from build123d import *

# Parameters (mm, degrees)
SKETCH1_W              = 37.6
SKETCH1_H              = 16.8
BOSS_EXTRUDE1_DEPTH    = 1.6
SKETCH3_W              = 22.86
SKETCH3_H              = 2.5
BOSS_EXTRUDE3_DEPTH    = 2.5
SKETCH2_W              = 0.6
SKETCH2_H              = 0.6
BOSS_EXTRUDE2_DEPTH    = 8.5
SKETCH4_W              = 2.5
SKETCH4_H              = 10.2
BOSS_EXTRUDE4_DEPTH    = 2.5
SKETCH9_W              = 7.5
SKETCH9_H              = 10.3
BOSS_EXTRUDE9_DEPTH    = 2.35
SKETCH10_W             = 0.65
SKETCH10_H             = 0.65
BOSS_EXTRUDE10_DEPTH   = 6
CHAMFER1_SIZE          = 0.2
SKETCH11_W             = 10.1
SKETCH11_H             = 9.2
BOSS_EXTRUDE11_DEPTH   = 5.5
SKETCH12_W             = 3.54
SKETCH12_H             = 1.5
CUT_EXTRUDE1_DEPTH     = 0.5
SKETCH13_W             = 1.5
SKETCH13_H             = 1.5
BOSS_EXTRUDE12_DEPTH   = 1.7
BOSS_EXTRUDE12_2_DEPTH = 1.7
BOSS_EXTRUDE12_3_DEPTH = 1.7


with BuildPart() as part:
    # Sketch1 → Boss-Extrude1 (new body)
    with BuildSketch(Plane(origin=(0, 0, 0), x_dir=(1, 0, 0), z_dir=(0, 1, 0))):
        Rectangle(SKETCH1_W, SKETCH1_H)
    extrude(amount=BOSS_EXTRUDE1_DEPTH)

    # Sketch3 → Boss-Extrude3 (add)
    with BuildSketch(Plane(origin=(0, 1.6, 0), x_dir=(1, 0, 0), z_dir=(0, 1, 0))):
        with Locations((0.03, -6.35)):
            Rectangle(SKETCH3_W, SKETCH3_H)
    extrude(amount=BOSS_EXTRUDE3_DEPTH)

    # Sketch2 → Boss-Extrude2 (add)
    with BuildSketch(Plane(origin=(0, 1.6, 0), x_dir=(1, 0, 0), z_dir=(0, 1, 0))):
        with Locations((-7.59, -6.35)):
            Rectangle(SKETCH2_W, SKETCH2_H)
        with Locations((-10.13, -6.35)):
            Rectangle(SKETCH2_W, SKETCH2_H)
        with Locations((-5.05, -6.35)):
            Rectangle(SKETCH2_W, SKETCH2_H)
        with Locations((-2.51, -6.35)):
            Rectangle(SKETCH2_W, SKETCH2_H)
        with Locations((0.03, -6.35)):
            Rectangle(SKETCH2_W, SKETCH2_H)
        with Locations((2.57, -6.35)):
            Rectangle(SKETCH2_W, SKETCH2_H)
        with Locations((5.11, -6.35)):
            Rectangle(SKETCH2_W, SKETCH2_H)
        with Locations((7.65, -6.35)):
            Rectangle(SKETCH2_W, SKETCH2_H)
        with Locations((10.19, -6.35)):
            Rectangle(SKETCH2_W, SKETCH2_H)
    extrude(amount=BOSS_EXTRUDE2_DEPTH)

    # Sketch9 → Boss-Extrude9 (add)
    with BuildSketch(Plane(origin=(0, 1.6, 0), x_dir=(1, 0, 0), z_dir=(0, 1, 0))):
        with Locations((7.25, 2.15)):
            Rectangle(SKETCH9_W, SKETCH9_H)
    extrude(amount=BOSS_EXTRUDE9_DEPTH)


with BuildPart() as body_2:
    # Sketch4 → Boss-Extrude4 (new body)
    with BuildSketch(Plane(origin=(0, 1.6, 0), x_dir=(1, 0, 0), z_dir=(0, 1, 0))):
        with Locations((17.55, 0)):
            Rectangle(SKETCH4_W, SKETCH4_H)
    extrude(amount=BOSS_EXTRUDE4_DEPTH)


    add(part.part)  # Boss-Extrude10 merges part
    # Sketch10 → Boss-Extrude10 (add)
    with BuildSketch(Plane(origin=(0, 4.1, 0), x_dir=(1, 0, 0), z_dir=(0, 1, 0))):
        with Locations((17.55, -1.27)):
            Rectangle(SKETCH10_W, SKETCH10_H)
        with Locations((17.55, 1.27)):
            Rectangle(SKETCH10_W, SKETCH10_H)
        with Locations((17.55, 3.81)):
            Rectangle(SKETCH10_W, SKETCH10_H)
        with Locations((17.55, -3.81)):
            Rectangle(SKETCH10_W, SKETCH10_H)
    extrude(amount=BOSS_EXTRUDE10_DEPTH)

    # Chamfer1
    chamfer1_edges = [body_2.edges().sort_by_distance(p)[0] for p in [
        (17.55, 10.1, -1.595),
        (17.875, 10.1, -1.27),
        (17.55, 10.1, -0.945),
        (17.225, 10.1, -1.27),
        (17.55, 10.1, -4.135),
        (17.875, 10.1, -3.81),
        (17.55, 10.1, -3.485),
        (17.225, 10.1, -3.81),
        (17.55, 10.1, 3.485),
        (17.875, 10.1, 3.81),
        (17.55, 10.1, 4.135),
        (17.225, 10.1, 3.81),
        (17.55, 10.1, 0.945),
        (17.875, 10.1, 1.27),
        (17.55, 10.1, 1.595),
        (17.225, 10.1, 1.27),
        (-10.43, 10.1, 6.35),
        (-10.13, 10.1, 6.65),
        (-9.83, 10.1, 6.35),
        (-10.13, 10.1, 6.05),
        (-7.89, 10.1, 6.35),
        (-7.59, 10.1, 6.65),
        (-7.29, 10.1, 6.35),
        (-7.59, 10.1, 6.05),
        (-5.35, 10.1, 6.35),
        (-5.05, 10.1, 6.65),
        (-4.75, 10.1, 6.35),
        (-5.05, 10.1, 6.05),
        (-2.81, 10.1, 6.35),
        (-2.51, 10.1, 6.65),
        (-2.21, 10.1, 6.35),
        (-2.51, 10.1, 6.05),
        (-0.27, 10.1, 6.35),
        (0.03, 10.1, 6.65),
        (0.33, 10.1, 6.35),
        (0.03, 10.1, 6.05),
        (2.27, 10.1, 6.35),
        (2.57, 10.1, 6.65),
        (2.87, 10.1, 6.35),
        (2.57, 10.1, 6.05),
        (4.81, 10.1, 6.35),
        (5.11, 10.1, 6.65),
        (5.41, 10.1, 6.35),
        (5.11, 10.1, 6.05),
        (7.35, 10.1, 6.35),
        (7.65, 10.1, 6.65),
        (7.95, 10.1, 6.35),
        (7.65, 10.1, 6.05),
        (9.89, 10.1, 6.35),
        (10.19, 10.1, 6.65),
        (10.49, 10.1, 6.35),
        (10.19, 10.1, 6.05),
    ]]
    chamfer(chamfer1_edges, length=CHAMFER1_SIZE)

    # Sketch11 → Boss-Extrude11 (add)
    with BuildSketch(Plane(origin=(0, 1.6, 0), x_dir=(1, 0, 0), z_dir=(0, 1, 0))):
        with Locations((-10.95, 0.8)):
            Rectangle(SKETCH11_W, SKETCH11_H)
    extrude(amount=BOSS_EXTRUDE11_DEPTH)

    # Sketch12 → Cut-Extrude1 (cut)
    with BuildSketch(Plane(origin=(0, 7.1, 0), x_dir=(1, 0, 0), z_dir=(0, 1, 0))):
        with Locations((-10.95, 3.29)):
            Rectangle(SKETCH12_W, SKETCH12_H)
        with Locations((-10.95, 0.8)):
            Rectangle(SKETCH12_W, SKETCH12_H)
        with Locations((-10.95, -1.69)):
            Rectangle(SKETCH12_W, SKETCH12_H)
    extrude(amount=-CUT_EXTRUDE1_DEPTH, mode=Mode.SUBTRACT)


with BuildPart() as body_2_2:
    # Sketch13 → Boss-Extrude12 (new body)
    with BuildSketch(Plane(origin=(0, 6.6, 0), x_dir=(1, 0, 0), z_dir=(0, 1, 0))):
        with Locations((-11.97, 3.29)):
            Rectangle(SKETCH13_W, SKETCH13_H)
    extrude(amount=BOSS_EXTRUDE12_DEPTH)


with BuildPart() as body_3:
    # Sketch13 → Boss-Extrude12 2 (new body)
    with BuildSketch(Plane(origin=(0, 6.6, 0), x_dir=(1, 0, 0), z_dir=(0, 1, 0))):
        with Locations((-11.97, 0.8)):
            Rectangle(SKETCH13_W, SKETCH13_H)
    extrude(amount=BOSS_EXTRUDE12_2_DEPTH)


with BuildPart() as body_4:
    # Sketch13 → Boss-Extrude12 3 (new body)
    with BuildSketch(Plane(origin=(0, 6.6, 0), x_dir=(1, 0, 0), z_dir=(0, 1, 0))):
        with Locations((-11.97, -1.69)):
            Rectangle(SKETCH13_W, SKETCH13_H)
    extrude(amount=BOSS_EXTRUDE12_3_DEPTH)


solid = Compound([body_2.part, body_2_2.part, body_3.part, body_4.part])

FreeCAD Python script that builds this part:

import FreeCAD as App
import Part
import Sketcher
from FreeCAD import Vector
Q = App.Units.Quantity


def edges_at(feature, points):
    """Names of the edges that pass closest to the given points."""
    edges = feature.Shape.Edges
    near = lambda p: min(range(len(edges)), key=lambda i: edges[i].distToShape(Part.Vertex(*p))[0])
    return sorted({f"Edge{near(p) + 1}" for p in points})


def add_polygon(sketch, points):
    """Adds a closed chain of lines whose ends are joined by coincident constraints."""
    first, n = sketch.GeometryCount, len(points)
    for a, b in zip(points, points[1:] + points[:1]):
        sketch.addGeometry(Part.LineSegment(App.Vector(*a, 0), App.Vector(*b, 0)), False)
    for i in range(n):
        sketch.addConstraint(Sketcher.Constraint("Coincident", first + i, 2, first + (i + 1) % n, 1))

doc = App.newDocument("Part")
params = doc.addObject("Spreadsheet::Sheet", "Params")
for row, (alias, value) in enumerate([
    ("sketch1_width", "37.6 mm"),
    ("sketch1_height", "16.8 mm"),
    ("pad1_length", "1.6 mm"),
    ("sketch2_height", "2.5 mm"),
    ("sketch2_width", "22.86 mm"),
    ("pad2_length", "2.5 mm"),
    ("sketch3_width", "0.6 mm"),
    ("pad3_length", "8.5 mm"),
    ("sketch4_width", "7.5 mm"),
    ("sketch4_height", "10.3 mm"),
    ("pad4_length", "2.35 mm"),
    ("sketch5_width", "2.5 mm"),
    ("sketch5_height", "10.2 mm"),
    ("pad5_length", "2.5 mm"),
    ("sketch6_width", "0.65 mm"),
    ("pad6_length", "6 mm"),
    ("chamfer_size", "0.2 mm"),
    ("sketch7_width", "10.1 mm"),
    ("sketch7_height", "9.2 mm"),
    ("pad7_length", "5.5 mm"),
    ("sketch8_height", "1.5 mm"),
    ("sketch8_width", "3.54 mm"),
    ("pocket1_length", "0.5 mm"),
    ("sketch9_width", "1.5 mm"),
    ("pad8_length", "1.7 mm"),
    ("sketch10_width", "1.5 mm"),
    ("pad9_length", "1.7 mm"),
    ("sketch11_width", "1.5 mm"),
    ("pad10_length", "1.7 mm"),
], start=1):
    params.set(f"A{row}", alias)
    params.set(f"B{row}", "=" + value)
    params.setAlias(f"B{row}", alias)

body = doc.addObject("PartDesign::Body", "Body")

sketch1 = body.newObject("Sketcher::SketchObject", "Sketch")
sketch1.AttachmentSupport = (doc.getObject("XZ_Plane"), [""])
sketch1.MapMode = "FlatFace"
add_polygon(sketch1, [(-19, -8), (-19, 8), (19, 8), (19, -8)])
sketch1.addConstraint([
    Sketcher.Constraint("Vertical", 0),
    Sketcher.Constraint("Horizontal", 1),
    Sketcher.Constraint("Vertical", 2),
    Sketcher.Constraint("Horizontal", 3),
    Sketcher.Constraint("Symmetric", 0, 2, 2, 2, -1, 1),
    Sketcher.Constraint("DistanceX", 1, 1, 1, 2, Q("37.6 mm")),
    Sketcher.Constraint("DistanceY", 0, 1, 0, 2, Q("16.8 mm")),
])
sketch1.setExpression("Constraints[9]", "Params.sketch1_width")
sketch1.setExpression("Constraints[10]", "Params.sketch1_height")
pad1 = body.newObject("PartDesign::Pad", "Pad")
pad1.Profile = sketch1
pad1.setExpression("Length", "Params.pad1_length")
pad1.Reversed = True

sketch2 = body.newObject("Sketcher::SketchObject", "Sketch001")
sketch2.AttachmentSupport = (doc.getObject("XZ_Plane"), [""])
sketch2.MapMode = "FlatFace"
sketch2.AttachmentOffset = App.Placement(Vector(0, 0, -1.6), App.Rotation())
add_polygon(sketch2, [(-11.4, 5.1), (-11.4, 7.6), (11.5, 7.6), (11.5, 5.1)])
sketch2.addConstraint([
    Sketcher.Constraint("Vertical", 0),
    Sketcher.Constraint("Horizontal", 1),
    Sketcher.Constraint("Vertical", 2),
    Sketcher.Constraint("Horizontal", 3),
    Sketcher.Constraint("DistanceY", 0, 1, 0, 2, Q("2.5 mm")),
    Sketcher.Constraint("DistanceX", 1, 1, 1, 2, Q("22.86 mm")),
    Sketcher.Constraint("DistanceX", 0, 2, -1, 1, Q("11.4 mm")),
    Sketcher.Constraint("DistanceY", -1, 1, 0, 2, Q("7.6 mm")),
])
sketch2.setExpression("Constraints[8]", "Params.sketch2_height")
sketch2.setExpression("Constraints[9]", "Params.sketch2_width")
pad2 = body.newObject("PartDesign::Pad", "Pad001")
pad2.Profile = sketch2
pad2.setExpression("Length", "Params.pad2_length")
pad2.Reversed = True

sketch3 = body.newObject("Sketcher::SketchObject", "Sketch002")
sketch3.AttachmentSupport = (doc.getObject("XZ_Plane"), [""])
sketch3.MapMode = "FlatFace"
sketch3.AttachmentOffset = App.Placement(Vector(0, 0, -1.6), App.Rotation())
add_polygon(sketch3, [(-7.9, 6), (-7.9, 6.7), (-7.3, 6.7), (-7.3, 6)])
add_polygon(sketch3, [(-10.4, 6), (-10.4, 6.7), (-9.8, 6.7), (-9.8, 6)])
add_polygon(sketch3, [(-5.3, 6), (-5.3, 6.7), (-4.8, 6.7), (-4.8, 6)])
add_polygon(sketch3, [(-2.8, 6), (-2.8, 6.7), (-2.2, 6.7), (-2.2, 6)])
add_polygon(sketch3, [(-0.3, 6), (-0.3, 6.7), (0.3, 6.7), (0.3, 6)])
add_polygon(sketch3, [(2.3, 6), (2.3, 6.7), (2.9, 6.7), (2.9, 6)])
add_polygon(sketch3, [(4.8, 6), (4.8, 6.7), (5.4, 6.7), (5.4, 6)])
add_polygon(sketch3, [(7.3, 6), (7.3, 6.7), (8, 6.7), (8, 6)])
add_polygon(sketch3, [(9.9, 6), (9.9, 6.7), (10.5, 6.7), (10.5, 6)])
sketch3.addConstraint([
    Sketcher.Constraint("Vertical", 0),
    Sketcher.Constraint("Horizontal", 1),
    Sketcher.Constraint("Vertical", 2),
    Sketcher.Constraint("Horizontal", 3),
    Sketcher.Constraint("Vertical", 4),
    Sketcher.Constraint("Horizontal", 5),
    Sketcher.Constraint("Vertical", 6),
    Sketcher.Constraint("Horizontal", 7),
    Sketcher.Constraint("Vertical", 8),
    Sketcher.Constraint("Horizontal", 9),
    Sketcher.Constraint("Vertical", 10),
    Sketcher.Constraint("Horizontal", 11),
    Sketcher.Constraint("Vertical", 12),
    Sketcher.Constraint("Horizontal", 13),
    Sketcher.Constraint("Vertical", 14),
    Sketcher.Constraint("Horizontal", 15),
    Sketcher.Constraint("Vertical", 16),
    Sketcher.Constraint("Horizontal", 17),
    Sketcher.Constraint("Vertical", 18),
    Sketcher.Constraint("Horizontal", 19),
    Sketcher.Constraint("Vertical", 20),
    Sketcher.Constraint("Horizontal", 21),
    Sketcher.Constraint("Vertical", 22),
    Sketcher.Constraint("Horizontal", 23),
    Sketcher.Constraint("Vertical", 24),
    Sketcher.Constraint("Horizontal", 25),
    Sketcher.Constraint("Vertical", 26),
    Sketcher.Constraint("Horizontal", 27),
    Sketcher.Constraint("Vertical", 28),
    Sketcher.Constraint("Horizontal", 29),
    Sketcher.Constraint("Vertical", 30),
    Sketcher.Constraint("Horizontal", 31),
    Sketcher.Constraint("Vertical", 32),
    Sketcher.Constraint("Horizontal", 33),
    Sketcher.Constraint("Vertical", 34),
    Sketcher.Constraint("Horizontal", 35),
    Sketcher.Constraint("Horizontal", 1, 2, 4, 2),
    Sketcher.Constraint("Horizontal", 3, 2, 6, 2),
    Sketcher.Constraint("Horizontal", 5, 2, 8, 2),
    Sketcher.Constraint("Horizontal", 7, 2, 10, 2),
    Sketcher.Constraint("Horizontal", 9, 2, 12, 2),
    Sketcher.Constraint("Horizontal", 11, 2, 14, 2),
    Sketcher.Constraint("Horizontal", 13, 2, 16, 2),
    Sketcher.Constraint("Horizontal", 15, 2, 18, 2),
    Sketcher.Constraint("Horizontal", 17, 2, 20, 2),
    Sketcher.Constraint("Horizontal", 19, 2, 22, 2),
    Sketcher.Constraint("Horizontal", 21, 2, 24, 2),
    Sketcher.Constraint("Horizontal", 23, 2, 26, 2),
    Sketcher.Constraint("Horizontal", 25, 2, 28, 2),
    Sketcher.Constraint("Horizontal", 27, 2, 30, 2),
    Sketcher.Constraint("Horizontal", 29, 2, 32, 2),
    Sketcher.Constraint("Horizontal", 31, 2, 34, 2),
    Sketcher.Constraint("Equal", 3, 5),
    Sketcher.Constraint("Equal", 7, 9),
    Sketcher.Constraint("Equal", 11, 13),
    Sketcher.Constraint("Equal", 15, 17),
    Sketcher.Constraint("Equal", 19, 21),
    Sketcher.Constraint("Equal", 23, 25),
    Sketcher.Constraint("Equal", 27, 29),
    Sketcher.Constraint("Equal", 31, 33),
    Sketcher.Constraint("Equal", 35, 0),
    Sketcher.Constraint("DistanceX", 1, 1, 1, 2, Q("0.6 mm")),
    Sketcher.Constraint("DistanceX", 0, 2, -1, 1, Q("7.89 mm")),
    Sketcher.Constraint("DistanceY", -1, 1, 0, 2, Q("6.65 mm")),
    Sketcher.Constraint("DistanceX", 4, 2, -1, 1, Q("10.43 mm")),
    Sketcher.Constraint("DistanceX", 8, 2, -1, 1, Q("5.35 mm")),
    Sketcher.Constraint("DistanceX", 12, 2, -1, 1, Q("2.81 mm")),
    Sketcher.Constraint("DistanceX", 16, 2, -1, 1, Q("0.27 mm")),
    Sketcher.Constraint("DistanceX", -1, 1, 20, 2, Q("2.27 mm")),
    Sketcher.Constraint("DistanceX", -1, 1, 24, 2, Q("4.81 mm")),
    Sketcher.Constraint("DistanceX", -1, 1, 28, 2, Q("7.35 mm")),
    Sketcher.Constraint("DistanceX", -1, 1, 32, 2, Q("9.89 mm")),
])
sketch3.setExpression("Constraints[97]", "Params.sketch3_width")
pad3 = body.newObject("PartDesign::Pad", "Pad002")
pad3.Profile = sketch3
pad3.setExpression("Length", "Params.pad3_length")
pad3.Reversed = True

sketch4 = body.newObject("Sketcher::SketchObject", "Sketch003")
sketch4.AttachmentSupport = (doc.getObject("XZ_Plane"), [""])
sketch4.MapMode = "FlatFace"
sketch4.AttachmentOffset = App.Placement(Vector(0, 0, -1.6), App.Rotation())
add_polygon(sketch4, [(4, -7), (4, 3), (11, 3), (11, -7)])
sketch4.addConstraint([
    Sketcher.Constraint("Vertical", 0),
    Sketcher.Constraint("Horizontal", 1),
    Sketcher.Constraint("Vertical", 2),
    Sketcher.Constraint("Horizontal", 3),
    Sketcher.Constraint("DistanceX", 1, 1, 1, 2, Q("7.5 mm")),
    Sketcher.Constraint("DistanceY", 0, 1, 0, 2, Q("10.3 mm")),
    Sketcher.Constraint("DistanceY", -1, 1, 0, 2, Q("3 mm")),
    Sketcher.Constraint("DistanceX", -1, 1, 1, 2, Q("11 mm")),
])
sketch4.setExpression("Constraints[8]", "Params.sketch4_width")
sketch4.setExpression("Constraints[9]", "Params.sketch4_height")
pad4 = body.newObject("PartDesign::Pad", "Pad003")
pad4.Profile = sketch4
pad4.setExpression("Length", "Params.pad4_length")
pad4.Reversed = True
body2 = doc.addObject("PartDesign::Body", "Body001")

sketch5 = body2.newObject("Sketcher::SketchObject", "Sketch004")
sketch5.AttachmentSupport = (doc.getObject("XZ_Plane001"), [""])
sketch5.MapMode = "FlatFace"
sketch5.AttachmentOffset = App.Placement(Vector(0, 0, -1.6), App.Rotation())
add_polygon(sketch5, [(16.3, -5.1), (16.3, 5.1), (18.8, 5.1), (18.8, -5.1)])
sketch5.addConstraint([
    Sketcher.Constraint("Vertical", 0),
    Sketcher.Constraint("Horizontal", 1),
    Sketcher.Constraint("Vertical", 2),
    Sketcher.Constraint("Horizontal", 3),
    Sketcher.Constraint("DistanceX", 1, 1, 1, 2, Q("2.5 mm")),
    Sketcher.Constraint("DistanceY", 0, 1, 0, 2, Q("10.2 mm")),
    Sketcher.Constraint("DistanceX", -1, 1, 0, 2, Q("16.3 mm")),
    Sketcher.Constraint("DistanceY", -1, 1, 0, 2, Q("5.1 mm")),
])
sketch5.setExpression("Constraints[8]", "Params.sketch5_width")
sketch5.setExpression("Constraints[9]", "Params.sketch5_height")
pad5 = body2.newObject("PartDesign::Pad", "Pad004")
pad5.Profile = sketch5
pad5.setExpression("Length", "Params.pad5_length")
pad5.Reversed = True
doc.recompute()

boolean = body2.newObject("PartDesign::Boolean", "Boolean")
boolean.Type = "Fuse"
boolean.addObjects([body])

sketch6 = body2.newObject("Sketcher::SketchObject", "Sketch005")
sketch6.AttachmentSupport = (doc.getObject("XZ_Plane001"), [""])
sketch6.MapMode = "FlatFace"
sketch6.AttachmentOffset = App.Placement(Vector(0, 0, -4.1), App.Rotation())
add_polygon(sketch6, [(17.2, 0.9), (17.2, 1.6), (17.9, 1.6), (17.9, 0.9)])
add_polygon(sketch6, [(17.2, -1.6), (17.2, -0.9), (17.9, -0.9), (17.9, -1.6)])
add_polygon(sketch6, [(17.2, -4.1), (17.2, -3.5), (17.9, -3.5), (17.9, -4.1)])
add_polygon(sketch6, [(17.2, 3.5), (17.2, 4.1), (17.9, 4.1), (17.9, 3.5)])
sketch6.addConstraint([
    Sketcher.Constraint("Vertical", 0),
    Sketcher.Constraint("Horizontal", 1),
    Sketcher.Constraint("Vertical", 2),
    Sketcher.Constraint("Horizontal", 3),
    Sketcher.Constraint("Vertical", 4),
    Sketcher.Constraint("Horizontal", 5),
    Sketcher.Constraint("Vertical", 6),
    Sketcher.Constraint("Horizontal", 7),
    Sketcher.Constraint("Vertical", 8),
    Sketcher.Constraint("Horizontal", 9),
    Sketcher.Constraint("Vertical", 10),
    Sketcher.Constraint("Horizontal", 11),
    Sketcher.Constraint("Vertical", 12),
    Sketcher.Constraint("Horizontal", 13),
    Sketcher.Constraint("Vertical", 14),
    Sketcher.Constraint("Horizontal", 15),
    Sketcher.Constraint("Symmetric", 3, 2, 4, 2, -1),
    Sketcher.Constraint("Symmetric", 1, 2, 6, 2, -1),
    Sketcher.Constraint("Symmetric", 11, 2, 12, 2, -1),
    Sketcher.Constraint("Symmetric", 9, 2, 14, 2, -1),
    Sketcher.Constraint("Vertical", 7, 2, 8, 2),
    Sketcher.Constraint("Vertical", 6, 2, 9, 2),
    Sketcher.Constraint("Equal", 15, 0),
    Sketcher.Constraint("Equal", 6, 8),
    Sketcher.Constraint("DistanceX", 1, 1, 1, 2, Q("0.65 mm")),
    Sketcher.Constraint("DistanceY", 4, 2, 3, 2, Q("1.89 mm")),
    Sketcher.Constraint("DistanceY", 8, 2, 7, 2, Q("1.89 mm")),
    Sketcher.Constraint("DistanceX", -1, 1, 0, 2, Q("17.225 mm")),
])
sketch6.setExpression("Constraints[40]", "Params.sketch6_width")
pad6 = body2.newObject("PartDesign::Pad", "Pad005")
pad6.Profile = sketch6
pad6.setExpression("Length", "Params.pad6_length")
pad6.Reversed = True
doc.recompute()

chamfer = body2.newObject("PartDesign::Chamfer", "Chamfer")
chamfer.Base = (pad6, edges_at(pad6, [
    (17.55, 10.1, -1.595),
    (17.875, 10.1, -1.27),
    (17.55, 10.1, -0.945),
    (17.225, 10.1, -1.27),
    (17.55, 10.1, -4.135),
    (17.875, 10.1, -3.81),
    (17.55, 10.1, -3.485),
    (17.225, 10.1, -3.81),
    (17.55, 10.1, 3.485),
    (17.875, 10.1, 3.81),
    (17.55, 10.1, 4.135),
    (17.225, 10.1, 3.81),
    (17.55, 10.1, 0.945),
    (17.875, 10.1, 1.27),
    (17.55, 10.1, 1.595),
    (17.225, 10.1, 1.27),
    (-10.43, 10.1, 6.35),
    (-10.13, 10.1, 6.65),
    (-9.83, 10.1, 6.35),
    (-10.13, 10.1, 6.05),
    (-7.89, 10.1, 6.35),
    (-7.59, 10.1, 6.65),
    (-7.29, 10.1, 6.35),
    (-7.59, 10.1, 6.05),
    (-5.35, 10.1, 6.35),
    (-5.05, 10.1, 6.65),
    (-4.75, 10.1, 6.35),
    (-5.05, 10.1, 6.05),
    (-2.81, 10.1, 6.35),
    (-2.51, 10.1, 6.65),
    (-2.21, 10.1, 6.35),
    (-2.51, 10.1, 6.05),
    (-0.27, 10.1, 6.35),
    (0.03, 10.1, 6.65),
    (0.33, 10.1, 6.35),
    (0.03, 10.1, 6.05),
    (2.27, 10.1, 6.35),
    (2.57, 10.1, 6.65),
    (2.87, 10.1, 6.35),
    (2.57, 10.1, 6.05),
    (4.81, 10.1, 6.35),
    (5.11, 10.1, 6.65),
    (5.41, 10.1, 6.35),
    (5.11, 10.1, 6.05),
    (7.35, 10.1, 6.35),
    (7.65, 10.1, 6.65),
    (7.95, 10.1, 6.35),
    (7.65, 10.1, 6.05),
    (9.89, 10.1, 6.35),
    (10.19, 10.1, 6.65),
    (10.49, 10.1, 6.35),
    (10.19, 10.1, 6.05),
]))
chamfer.setExpression("Size", "Params.chamfer_size")

sketch7 = body2.newObject("Sketcher::SketchObject", "Sketch006")
sketch7.AttachmentSupport = (doc.getObject("XZ_Plane001"), [""])
sketch7.MapMode = "FlatFace"
sketch7.AttachmentOffset = App.Placement(Vector(0, 0, -1.6), App.Rotation())
add_polygon(sketch7, [(-16, -5), (-16, 4), (-6, 4), (-6, -5)])
sketch7.addConstraint([
    Sketcher.Constraint("Vertical", 0),
    Sketcher.Constraint("Horizontal", 1),
    Sketcher.Constraint("Vertical", 2),
    Sketcher.Constraint("Horizontal", 3),
    Sketcher.Constraint("DistanceX", 1, 1, 1, 2, Q("10.1 mm")),
    Sketcher.Constraint("DistanceY", 0, 1, 0, 2, Q("9.2 mm")),
    Sketcher.Constraint("DistanceX", 0, 2, -1, 1, Q("16 mm")),
    Sketcher.Constraint("DistanceY", -1, 1, 0, 2, Q("3.8 mm")),
])
sketch7.setExpression("Constraints[8]", "Params.sketch7_width")
sketch7.setExpression("Constraints[9]", "Params.sketch7_height")
pad7 = body2.newObject("PartDesign::Pad", "Pad006")
pad7.Profile = sketch7
pad7.setExpression("Length", "Params.pad7_length")
pad7.Reversed = True

sketch8 = body2.newObject("Sketcher::SketchObject", "Sketch007")
sketch8.AttachmentSupport = (doc.getObject("XZ_Plane001"), [""])
sketch8.MapMode = "FlatFace"
sketch8.AttachmentOffset = App.Placement(Vector(0, 0, -7.1), App.Rotation())
add_polygon(sketch8, [(-12.7, -4), (-12.7, -2.5), (-9.2, -2.5), (-9.2, -4)])
add_polygon(sketch8, [(-12.7, -1.6), (-12.7, -0.1), (-9.2, -0.1), (-9.2, -1.6)])
add_polygon(sketch8, [(-12.7, 0.9), (-12.7, 2.4), (-9.2, 2.4), (-9.2, 0.9)])
sketch8.addConstraint([
    Sketcher.Constraint("Vertical", 0),
    Sketcher.Constraint("Horizontal", 1),
    Sketcher.Constraint("Vertical", 2),
    Sketcher.Constraint("Horizontal", 3),
    Sketcher.Constraint("Vertical", 4),
    Sketcher.Constraint("Horizontal", 5),
    Sketcher.Constraint("Vertical", 6),
    Sketcher.Constraint("Horizontal", 7),
    Sketcher.Constraint("Vertical", 8),
    Sketcher.Constraint("Horizontal", 9),
    Sketcher.Constraint("Vertical", 10),
    Sketcher.Constraint("Horizontal", 11),
    Sketcher.Constraint("Vertical", 3, 2, 4, 2),
    Sketcher.Constraint("Vertical", 2, 2, 5, 2),
    Sketcher.Constraint("Vertical", 7, 2, 8, 2),
    Sketcher.Constraint("Vertical", 6, 2, 9, 2),
    Sketcher.Constraint("Equal", 2, 4),
    Sketcher.Constraint("Equal", 6, 8),
    Sketcher.Constraint("DistanceY", 0, 1, 0, 2, Q("1.5 mm")),
    Sketcher.Constraint("DistanceX", 1, 1, 1, 2, Q("3.54 mm")),
    Sketcher.Constraint("DistanceX", 0, 2, -1, 1, Q("12.72 mm")),
    Sketcher.Constraint("DistanceY", 0, 2, -1, 1, Q("2.54 mm")),
    Sketcher.Constraint("DistanceY", 4, 2, -1, 1, Q("0.05 mm")),
    Sketcher.Constraint("DistanceY", -1, 1, 8, 2, Q("2.44 mm")),
])
sketch8.setExpression("Constraints[30]", "Params.sketch8_height")
sketch8.setExpression("Constraints[31]", "Params.sketch8_width")
pocket1 = body2.newObject("PartDesign::Pocket", "Pocket")
pocket1.Profile = sketch8
pocket1.setExpression("Length", "Params.pocket1_length")
pocket1.Reversed = True
body3 = doc.addObject("PartDesign::Body", "Body002")

sketch9 = body3.newObject("Sketcher::SketchObject", "Sketch008")
sketch9.AttachmentSupport = (doc.getObject("XZ_Plane002"), [""])
sketch9.MapMode = "FlatFace"
sketch9.AttachmentOffset = App.Placement(Vector(0, 0, -6.6), App.Rotation())
add_polygon(sketch9, [(-12.7, -4), (-12.7, -2.5), (-11.2, -2.5), (-11.2, -4)])
sketch9.addConstraint([
    Sketcher.Constraint("Vertical", 0),
    Sketcher.Constraint("Horizontal", 1),
    Sketcher.Constraint("Vertical", 2),
    Sketcher.Constraint("Horizontal", 3),
    Sketcher.Constraint("Equal", 3, 0),
    Sketcher.Constraint("DistanceX", 1, 1, 1, 2, Q("1.5 mm")),
    Sketcher.Constraint("DistanceX", 0, 2, -1, 1, Q("12.72 mm")),
    Sketcher.Constraint("DistanceY", 0, 2, -1, 1, Q("2.54 mm")),
])
sketch9.setExpression("Constraints[9]", "Params.sketch9_width")
pad8 = body3.newObject("PartDesign::Pad", "Pad007")
pad8.Profile = sketch9
pad8.setExpression("Length", "Params.pad8_length")
pad8.Reversed = True
body4 = doc.addObject("PartDesign::Body", "Body003")

sketch10 = body4.newObject("Sketcher::SketchObject", "Sketch009")
sketch10.AttachmentSupport = (doc.getObject("XZ_Plane003"), [""])
sketch10.MapMode = "FlatFace"
sketch10.AttachmentOffset = App.Placement(Vector(0, 0, -6.6), App.Rotation())
add_polygon(sketch10, [(-12.7, -1.6), (-12.7, -0.1), (-11.2, -0.1), (-11.2, -1.6)])
sketch10.addConstraint([
    Sketcher.Constraint("Vertical", 0),
    Sketcher.Constraint("Horizontal", 1),
    Sketcher.Constraint("Vertical", 2),
    Sketcher.Constraint("Horizontal", 3),
    Sketcher.Constraint("Equal", 3, 0),
    Sketcher.Constraint("DistanceX", 1, 1, 1, 2, Q("1.5 mm")),
    Sketcher.Constraint("DistanceX", 0, 2, -1, 1, Q("12.72 mm")),
    Sketcher.Constraint("DistanceY", 0, 2, -1, 1, Q("0.05 mm")),
])
sketch10.setExpression("Constraints[9]", "Params.sketch10_width")
pad9 = body4.newObject("PartDesign::Pad", "Pad008")
pad9.Profile = sketch10
pad9.setExpression("Length", "Params.pad9_length")
pad9.Reversed = True
body5 = doc.addObject("PartDesign::Body", "Body004")

sketch11 = body5.newObject("Sketcher::SketchObject", "Sketch010")
sketch11.AttachmentSupport = (doc.getObject("XZ_Plane004"), [""])
sketch11.MapMode = "FlatFace"
sketch11.AttachmentOffset = App.Placement(Vector(0, 0, -6.6), App.Rotation())
add_polygon(sketch11, [(-12.7, 0.9), (-12.7, 2.4), (-11.2, 2.4), (-11.2, 0.9)])
sketch11.addConstraint([
    Sketcher.Constraint("Vertical", 0),
    Sketcher.Constraint("Horizontal", 1),
    Sketcher.Constraint("Vertical", 2),
    Sketcher.Constraint("Horizontal", 3),
    Sketcher.Constraint("Equal", 3, 0),
    Sketcher.Constraint("DistanceX", 1, 1, 1, 2, Q("1.5 mm")),
    Sketcher.Constraint("DistanceX", 0, 2, -1, 1, Q("12.72 mm")),
    Sketcher.Constraint("DistanceY", -1, 1, 0, 2, Q("2.44 mm")),
])
sketch11.setExpression("Constraints[9]", "Params.sketch11_width")
pad10 = body5.newObject("PartDesign::Pad", "Pad009")
pad10.Profile = sketch11
pad10.setExpression("Length", "Params.pad10_length")
pad10.Reversed = True

doc.recompute()
